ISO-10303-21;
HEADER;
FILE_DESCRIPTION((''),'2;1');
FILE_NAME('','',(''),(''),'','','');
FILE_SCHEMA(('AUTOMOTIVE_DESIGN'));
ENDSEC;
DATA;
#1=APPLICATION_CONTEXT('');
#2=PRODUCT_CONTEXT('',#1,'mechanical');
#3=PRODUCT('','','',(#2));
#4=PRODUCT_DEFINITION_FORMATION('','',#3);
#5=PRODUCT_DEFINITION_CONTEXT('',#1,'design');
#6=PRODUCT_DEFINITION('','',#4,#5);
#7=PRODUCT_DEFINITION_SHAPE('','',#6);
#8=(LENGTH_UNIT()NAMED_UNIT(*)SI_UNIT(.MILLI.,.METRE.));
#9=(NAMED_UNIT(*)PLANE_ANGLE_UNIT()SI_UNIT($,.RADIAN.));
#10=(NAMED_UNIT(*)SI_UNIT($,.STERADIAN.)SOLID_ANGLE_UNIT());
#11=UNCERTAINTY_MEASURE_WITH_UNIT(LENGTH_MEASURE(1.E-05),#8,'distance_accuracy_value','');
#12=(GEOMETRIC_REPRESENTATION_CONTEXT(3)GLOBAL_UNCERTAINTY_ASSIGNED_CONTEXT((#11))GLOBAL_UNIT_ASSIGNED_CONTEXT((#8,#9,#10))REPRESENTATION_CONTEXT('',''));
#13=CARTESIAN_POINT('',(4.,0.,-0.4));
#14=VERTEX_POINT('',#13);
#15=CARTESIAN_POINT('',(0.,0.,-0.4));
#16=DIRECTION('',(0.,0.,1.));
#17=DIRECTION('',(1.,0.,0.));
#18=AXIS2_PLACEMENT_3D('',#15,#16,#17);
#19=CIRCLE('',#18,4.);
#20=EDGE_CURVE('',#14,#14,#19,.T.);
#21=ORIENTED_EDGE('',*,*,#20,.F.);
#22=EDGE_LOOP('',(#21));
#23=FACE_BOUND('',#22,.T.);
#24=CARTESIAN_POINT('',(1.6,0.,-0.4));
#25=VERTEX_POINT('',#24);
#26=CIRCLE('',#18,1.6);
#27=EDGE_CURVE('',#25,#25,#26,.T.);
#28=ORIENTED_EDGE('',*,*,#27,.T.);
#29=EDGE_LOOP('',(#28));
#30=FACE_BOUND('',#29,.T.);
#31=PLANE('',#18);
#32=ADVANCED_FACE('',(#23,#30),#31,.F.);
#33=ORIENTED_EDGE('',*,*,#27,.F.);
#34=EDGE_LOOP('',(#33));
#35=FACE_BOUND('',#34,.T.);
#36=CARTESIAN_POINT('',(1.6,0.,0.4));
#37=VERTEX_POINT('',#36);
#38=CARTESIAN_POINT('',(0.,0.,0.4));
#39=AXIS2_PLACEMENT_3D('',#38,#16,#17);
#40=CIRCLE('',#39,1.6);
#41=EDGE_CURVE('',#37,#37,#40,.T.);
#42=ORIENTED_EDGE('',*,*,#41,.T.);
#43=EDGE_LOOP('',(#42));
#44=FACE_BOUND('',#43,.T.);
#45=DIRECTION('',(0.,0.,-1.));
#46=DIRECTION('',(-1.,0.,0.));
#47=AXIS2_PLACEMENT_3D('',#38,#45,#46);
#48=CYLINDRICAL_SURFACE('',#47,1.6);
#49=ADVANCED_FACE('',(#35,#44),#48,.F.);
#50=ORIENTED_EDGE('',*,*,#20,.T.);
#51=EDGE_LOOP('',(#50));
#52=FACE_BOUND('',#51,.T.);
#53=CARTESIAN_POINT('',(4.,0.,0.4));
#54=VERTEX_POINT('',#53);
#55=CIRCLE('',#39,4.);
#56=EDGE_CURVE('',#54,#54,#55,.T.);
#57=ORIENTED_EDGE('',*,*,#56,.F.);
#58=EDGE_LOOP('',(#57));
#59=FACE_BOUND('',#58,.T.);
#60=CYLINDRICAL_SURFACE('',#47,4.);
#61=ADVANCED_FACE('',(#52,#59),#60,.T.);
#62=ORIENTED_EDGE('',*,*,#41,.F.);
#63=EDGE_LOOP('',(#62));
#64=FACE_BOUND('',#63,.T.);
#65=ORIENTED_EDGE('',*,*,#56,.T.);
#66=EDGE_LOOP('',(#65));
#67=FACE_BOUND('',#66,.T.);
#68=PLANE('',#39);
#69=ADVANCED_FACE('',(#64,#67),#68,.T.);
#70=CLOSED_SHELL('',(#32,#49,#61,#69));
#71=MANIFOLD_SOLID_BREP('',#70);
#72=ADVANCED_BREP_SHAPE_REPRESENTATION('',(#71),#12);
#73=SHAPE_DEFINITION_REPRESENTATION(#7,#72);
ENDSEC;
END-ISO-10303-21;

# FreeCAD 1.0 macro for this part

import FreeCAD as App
import Part
import Sketcher
from FreeCAD import Vector
Q = App.Units.Quantity

doc = App.newDocument("Part")
body = doc.addObject("PartDesign::Body", "Body")

sketch1 = body.newObject("Sketcher::SketchObject", "Sketch")
sketch1.AttachmentSupport = (doc.getObject("XY_Plane"), [""])
sketch1.MapMode = "FlatFace"
sketch1.addGeometry([
    Part.Circle(Vector(0, 0, 0), Vector(0, 0, 1), 4),
    Part.Circle(Vector(0, 0, 0), Vector(0, 0, 1), 1.6),
], False)
sketch1.addConstraint([
    Sketcher.Constraint("Coincident", 0, 3, -1, 1),
    Sketcher.Constraint("Coincident", 1, 3, -1, 1),
    Sketcher.Constraint("Diameter", 0, Q("8 mm")),
    Sketcher.Constraint("Diameter", 1, Q("3.2 mm")),
])
pad1 = body.newObject("PartDesign::Pad", "Pad")
pad1.Profile = sketch1
pad1.Length = 0.8
pad1.Midplane = True

doc.recompute()
